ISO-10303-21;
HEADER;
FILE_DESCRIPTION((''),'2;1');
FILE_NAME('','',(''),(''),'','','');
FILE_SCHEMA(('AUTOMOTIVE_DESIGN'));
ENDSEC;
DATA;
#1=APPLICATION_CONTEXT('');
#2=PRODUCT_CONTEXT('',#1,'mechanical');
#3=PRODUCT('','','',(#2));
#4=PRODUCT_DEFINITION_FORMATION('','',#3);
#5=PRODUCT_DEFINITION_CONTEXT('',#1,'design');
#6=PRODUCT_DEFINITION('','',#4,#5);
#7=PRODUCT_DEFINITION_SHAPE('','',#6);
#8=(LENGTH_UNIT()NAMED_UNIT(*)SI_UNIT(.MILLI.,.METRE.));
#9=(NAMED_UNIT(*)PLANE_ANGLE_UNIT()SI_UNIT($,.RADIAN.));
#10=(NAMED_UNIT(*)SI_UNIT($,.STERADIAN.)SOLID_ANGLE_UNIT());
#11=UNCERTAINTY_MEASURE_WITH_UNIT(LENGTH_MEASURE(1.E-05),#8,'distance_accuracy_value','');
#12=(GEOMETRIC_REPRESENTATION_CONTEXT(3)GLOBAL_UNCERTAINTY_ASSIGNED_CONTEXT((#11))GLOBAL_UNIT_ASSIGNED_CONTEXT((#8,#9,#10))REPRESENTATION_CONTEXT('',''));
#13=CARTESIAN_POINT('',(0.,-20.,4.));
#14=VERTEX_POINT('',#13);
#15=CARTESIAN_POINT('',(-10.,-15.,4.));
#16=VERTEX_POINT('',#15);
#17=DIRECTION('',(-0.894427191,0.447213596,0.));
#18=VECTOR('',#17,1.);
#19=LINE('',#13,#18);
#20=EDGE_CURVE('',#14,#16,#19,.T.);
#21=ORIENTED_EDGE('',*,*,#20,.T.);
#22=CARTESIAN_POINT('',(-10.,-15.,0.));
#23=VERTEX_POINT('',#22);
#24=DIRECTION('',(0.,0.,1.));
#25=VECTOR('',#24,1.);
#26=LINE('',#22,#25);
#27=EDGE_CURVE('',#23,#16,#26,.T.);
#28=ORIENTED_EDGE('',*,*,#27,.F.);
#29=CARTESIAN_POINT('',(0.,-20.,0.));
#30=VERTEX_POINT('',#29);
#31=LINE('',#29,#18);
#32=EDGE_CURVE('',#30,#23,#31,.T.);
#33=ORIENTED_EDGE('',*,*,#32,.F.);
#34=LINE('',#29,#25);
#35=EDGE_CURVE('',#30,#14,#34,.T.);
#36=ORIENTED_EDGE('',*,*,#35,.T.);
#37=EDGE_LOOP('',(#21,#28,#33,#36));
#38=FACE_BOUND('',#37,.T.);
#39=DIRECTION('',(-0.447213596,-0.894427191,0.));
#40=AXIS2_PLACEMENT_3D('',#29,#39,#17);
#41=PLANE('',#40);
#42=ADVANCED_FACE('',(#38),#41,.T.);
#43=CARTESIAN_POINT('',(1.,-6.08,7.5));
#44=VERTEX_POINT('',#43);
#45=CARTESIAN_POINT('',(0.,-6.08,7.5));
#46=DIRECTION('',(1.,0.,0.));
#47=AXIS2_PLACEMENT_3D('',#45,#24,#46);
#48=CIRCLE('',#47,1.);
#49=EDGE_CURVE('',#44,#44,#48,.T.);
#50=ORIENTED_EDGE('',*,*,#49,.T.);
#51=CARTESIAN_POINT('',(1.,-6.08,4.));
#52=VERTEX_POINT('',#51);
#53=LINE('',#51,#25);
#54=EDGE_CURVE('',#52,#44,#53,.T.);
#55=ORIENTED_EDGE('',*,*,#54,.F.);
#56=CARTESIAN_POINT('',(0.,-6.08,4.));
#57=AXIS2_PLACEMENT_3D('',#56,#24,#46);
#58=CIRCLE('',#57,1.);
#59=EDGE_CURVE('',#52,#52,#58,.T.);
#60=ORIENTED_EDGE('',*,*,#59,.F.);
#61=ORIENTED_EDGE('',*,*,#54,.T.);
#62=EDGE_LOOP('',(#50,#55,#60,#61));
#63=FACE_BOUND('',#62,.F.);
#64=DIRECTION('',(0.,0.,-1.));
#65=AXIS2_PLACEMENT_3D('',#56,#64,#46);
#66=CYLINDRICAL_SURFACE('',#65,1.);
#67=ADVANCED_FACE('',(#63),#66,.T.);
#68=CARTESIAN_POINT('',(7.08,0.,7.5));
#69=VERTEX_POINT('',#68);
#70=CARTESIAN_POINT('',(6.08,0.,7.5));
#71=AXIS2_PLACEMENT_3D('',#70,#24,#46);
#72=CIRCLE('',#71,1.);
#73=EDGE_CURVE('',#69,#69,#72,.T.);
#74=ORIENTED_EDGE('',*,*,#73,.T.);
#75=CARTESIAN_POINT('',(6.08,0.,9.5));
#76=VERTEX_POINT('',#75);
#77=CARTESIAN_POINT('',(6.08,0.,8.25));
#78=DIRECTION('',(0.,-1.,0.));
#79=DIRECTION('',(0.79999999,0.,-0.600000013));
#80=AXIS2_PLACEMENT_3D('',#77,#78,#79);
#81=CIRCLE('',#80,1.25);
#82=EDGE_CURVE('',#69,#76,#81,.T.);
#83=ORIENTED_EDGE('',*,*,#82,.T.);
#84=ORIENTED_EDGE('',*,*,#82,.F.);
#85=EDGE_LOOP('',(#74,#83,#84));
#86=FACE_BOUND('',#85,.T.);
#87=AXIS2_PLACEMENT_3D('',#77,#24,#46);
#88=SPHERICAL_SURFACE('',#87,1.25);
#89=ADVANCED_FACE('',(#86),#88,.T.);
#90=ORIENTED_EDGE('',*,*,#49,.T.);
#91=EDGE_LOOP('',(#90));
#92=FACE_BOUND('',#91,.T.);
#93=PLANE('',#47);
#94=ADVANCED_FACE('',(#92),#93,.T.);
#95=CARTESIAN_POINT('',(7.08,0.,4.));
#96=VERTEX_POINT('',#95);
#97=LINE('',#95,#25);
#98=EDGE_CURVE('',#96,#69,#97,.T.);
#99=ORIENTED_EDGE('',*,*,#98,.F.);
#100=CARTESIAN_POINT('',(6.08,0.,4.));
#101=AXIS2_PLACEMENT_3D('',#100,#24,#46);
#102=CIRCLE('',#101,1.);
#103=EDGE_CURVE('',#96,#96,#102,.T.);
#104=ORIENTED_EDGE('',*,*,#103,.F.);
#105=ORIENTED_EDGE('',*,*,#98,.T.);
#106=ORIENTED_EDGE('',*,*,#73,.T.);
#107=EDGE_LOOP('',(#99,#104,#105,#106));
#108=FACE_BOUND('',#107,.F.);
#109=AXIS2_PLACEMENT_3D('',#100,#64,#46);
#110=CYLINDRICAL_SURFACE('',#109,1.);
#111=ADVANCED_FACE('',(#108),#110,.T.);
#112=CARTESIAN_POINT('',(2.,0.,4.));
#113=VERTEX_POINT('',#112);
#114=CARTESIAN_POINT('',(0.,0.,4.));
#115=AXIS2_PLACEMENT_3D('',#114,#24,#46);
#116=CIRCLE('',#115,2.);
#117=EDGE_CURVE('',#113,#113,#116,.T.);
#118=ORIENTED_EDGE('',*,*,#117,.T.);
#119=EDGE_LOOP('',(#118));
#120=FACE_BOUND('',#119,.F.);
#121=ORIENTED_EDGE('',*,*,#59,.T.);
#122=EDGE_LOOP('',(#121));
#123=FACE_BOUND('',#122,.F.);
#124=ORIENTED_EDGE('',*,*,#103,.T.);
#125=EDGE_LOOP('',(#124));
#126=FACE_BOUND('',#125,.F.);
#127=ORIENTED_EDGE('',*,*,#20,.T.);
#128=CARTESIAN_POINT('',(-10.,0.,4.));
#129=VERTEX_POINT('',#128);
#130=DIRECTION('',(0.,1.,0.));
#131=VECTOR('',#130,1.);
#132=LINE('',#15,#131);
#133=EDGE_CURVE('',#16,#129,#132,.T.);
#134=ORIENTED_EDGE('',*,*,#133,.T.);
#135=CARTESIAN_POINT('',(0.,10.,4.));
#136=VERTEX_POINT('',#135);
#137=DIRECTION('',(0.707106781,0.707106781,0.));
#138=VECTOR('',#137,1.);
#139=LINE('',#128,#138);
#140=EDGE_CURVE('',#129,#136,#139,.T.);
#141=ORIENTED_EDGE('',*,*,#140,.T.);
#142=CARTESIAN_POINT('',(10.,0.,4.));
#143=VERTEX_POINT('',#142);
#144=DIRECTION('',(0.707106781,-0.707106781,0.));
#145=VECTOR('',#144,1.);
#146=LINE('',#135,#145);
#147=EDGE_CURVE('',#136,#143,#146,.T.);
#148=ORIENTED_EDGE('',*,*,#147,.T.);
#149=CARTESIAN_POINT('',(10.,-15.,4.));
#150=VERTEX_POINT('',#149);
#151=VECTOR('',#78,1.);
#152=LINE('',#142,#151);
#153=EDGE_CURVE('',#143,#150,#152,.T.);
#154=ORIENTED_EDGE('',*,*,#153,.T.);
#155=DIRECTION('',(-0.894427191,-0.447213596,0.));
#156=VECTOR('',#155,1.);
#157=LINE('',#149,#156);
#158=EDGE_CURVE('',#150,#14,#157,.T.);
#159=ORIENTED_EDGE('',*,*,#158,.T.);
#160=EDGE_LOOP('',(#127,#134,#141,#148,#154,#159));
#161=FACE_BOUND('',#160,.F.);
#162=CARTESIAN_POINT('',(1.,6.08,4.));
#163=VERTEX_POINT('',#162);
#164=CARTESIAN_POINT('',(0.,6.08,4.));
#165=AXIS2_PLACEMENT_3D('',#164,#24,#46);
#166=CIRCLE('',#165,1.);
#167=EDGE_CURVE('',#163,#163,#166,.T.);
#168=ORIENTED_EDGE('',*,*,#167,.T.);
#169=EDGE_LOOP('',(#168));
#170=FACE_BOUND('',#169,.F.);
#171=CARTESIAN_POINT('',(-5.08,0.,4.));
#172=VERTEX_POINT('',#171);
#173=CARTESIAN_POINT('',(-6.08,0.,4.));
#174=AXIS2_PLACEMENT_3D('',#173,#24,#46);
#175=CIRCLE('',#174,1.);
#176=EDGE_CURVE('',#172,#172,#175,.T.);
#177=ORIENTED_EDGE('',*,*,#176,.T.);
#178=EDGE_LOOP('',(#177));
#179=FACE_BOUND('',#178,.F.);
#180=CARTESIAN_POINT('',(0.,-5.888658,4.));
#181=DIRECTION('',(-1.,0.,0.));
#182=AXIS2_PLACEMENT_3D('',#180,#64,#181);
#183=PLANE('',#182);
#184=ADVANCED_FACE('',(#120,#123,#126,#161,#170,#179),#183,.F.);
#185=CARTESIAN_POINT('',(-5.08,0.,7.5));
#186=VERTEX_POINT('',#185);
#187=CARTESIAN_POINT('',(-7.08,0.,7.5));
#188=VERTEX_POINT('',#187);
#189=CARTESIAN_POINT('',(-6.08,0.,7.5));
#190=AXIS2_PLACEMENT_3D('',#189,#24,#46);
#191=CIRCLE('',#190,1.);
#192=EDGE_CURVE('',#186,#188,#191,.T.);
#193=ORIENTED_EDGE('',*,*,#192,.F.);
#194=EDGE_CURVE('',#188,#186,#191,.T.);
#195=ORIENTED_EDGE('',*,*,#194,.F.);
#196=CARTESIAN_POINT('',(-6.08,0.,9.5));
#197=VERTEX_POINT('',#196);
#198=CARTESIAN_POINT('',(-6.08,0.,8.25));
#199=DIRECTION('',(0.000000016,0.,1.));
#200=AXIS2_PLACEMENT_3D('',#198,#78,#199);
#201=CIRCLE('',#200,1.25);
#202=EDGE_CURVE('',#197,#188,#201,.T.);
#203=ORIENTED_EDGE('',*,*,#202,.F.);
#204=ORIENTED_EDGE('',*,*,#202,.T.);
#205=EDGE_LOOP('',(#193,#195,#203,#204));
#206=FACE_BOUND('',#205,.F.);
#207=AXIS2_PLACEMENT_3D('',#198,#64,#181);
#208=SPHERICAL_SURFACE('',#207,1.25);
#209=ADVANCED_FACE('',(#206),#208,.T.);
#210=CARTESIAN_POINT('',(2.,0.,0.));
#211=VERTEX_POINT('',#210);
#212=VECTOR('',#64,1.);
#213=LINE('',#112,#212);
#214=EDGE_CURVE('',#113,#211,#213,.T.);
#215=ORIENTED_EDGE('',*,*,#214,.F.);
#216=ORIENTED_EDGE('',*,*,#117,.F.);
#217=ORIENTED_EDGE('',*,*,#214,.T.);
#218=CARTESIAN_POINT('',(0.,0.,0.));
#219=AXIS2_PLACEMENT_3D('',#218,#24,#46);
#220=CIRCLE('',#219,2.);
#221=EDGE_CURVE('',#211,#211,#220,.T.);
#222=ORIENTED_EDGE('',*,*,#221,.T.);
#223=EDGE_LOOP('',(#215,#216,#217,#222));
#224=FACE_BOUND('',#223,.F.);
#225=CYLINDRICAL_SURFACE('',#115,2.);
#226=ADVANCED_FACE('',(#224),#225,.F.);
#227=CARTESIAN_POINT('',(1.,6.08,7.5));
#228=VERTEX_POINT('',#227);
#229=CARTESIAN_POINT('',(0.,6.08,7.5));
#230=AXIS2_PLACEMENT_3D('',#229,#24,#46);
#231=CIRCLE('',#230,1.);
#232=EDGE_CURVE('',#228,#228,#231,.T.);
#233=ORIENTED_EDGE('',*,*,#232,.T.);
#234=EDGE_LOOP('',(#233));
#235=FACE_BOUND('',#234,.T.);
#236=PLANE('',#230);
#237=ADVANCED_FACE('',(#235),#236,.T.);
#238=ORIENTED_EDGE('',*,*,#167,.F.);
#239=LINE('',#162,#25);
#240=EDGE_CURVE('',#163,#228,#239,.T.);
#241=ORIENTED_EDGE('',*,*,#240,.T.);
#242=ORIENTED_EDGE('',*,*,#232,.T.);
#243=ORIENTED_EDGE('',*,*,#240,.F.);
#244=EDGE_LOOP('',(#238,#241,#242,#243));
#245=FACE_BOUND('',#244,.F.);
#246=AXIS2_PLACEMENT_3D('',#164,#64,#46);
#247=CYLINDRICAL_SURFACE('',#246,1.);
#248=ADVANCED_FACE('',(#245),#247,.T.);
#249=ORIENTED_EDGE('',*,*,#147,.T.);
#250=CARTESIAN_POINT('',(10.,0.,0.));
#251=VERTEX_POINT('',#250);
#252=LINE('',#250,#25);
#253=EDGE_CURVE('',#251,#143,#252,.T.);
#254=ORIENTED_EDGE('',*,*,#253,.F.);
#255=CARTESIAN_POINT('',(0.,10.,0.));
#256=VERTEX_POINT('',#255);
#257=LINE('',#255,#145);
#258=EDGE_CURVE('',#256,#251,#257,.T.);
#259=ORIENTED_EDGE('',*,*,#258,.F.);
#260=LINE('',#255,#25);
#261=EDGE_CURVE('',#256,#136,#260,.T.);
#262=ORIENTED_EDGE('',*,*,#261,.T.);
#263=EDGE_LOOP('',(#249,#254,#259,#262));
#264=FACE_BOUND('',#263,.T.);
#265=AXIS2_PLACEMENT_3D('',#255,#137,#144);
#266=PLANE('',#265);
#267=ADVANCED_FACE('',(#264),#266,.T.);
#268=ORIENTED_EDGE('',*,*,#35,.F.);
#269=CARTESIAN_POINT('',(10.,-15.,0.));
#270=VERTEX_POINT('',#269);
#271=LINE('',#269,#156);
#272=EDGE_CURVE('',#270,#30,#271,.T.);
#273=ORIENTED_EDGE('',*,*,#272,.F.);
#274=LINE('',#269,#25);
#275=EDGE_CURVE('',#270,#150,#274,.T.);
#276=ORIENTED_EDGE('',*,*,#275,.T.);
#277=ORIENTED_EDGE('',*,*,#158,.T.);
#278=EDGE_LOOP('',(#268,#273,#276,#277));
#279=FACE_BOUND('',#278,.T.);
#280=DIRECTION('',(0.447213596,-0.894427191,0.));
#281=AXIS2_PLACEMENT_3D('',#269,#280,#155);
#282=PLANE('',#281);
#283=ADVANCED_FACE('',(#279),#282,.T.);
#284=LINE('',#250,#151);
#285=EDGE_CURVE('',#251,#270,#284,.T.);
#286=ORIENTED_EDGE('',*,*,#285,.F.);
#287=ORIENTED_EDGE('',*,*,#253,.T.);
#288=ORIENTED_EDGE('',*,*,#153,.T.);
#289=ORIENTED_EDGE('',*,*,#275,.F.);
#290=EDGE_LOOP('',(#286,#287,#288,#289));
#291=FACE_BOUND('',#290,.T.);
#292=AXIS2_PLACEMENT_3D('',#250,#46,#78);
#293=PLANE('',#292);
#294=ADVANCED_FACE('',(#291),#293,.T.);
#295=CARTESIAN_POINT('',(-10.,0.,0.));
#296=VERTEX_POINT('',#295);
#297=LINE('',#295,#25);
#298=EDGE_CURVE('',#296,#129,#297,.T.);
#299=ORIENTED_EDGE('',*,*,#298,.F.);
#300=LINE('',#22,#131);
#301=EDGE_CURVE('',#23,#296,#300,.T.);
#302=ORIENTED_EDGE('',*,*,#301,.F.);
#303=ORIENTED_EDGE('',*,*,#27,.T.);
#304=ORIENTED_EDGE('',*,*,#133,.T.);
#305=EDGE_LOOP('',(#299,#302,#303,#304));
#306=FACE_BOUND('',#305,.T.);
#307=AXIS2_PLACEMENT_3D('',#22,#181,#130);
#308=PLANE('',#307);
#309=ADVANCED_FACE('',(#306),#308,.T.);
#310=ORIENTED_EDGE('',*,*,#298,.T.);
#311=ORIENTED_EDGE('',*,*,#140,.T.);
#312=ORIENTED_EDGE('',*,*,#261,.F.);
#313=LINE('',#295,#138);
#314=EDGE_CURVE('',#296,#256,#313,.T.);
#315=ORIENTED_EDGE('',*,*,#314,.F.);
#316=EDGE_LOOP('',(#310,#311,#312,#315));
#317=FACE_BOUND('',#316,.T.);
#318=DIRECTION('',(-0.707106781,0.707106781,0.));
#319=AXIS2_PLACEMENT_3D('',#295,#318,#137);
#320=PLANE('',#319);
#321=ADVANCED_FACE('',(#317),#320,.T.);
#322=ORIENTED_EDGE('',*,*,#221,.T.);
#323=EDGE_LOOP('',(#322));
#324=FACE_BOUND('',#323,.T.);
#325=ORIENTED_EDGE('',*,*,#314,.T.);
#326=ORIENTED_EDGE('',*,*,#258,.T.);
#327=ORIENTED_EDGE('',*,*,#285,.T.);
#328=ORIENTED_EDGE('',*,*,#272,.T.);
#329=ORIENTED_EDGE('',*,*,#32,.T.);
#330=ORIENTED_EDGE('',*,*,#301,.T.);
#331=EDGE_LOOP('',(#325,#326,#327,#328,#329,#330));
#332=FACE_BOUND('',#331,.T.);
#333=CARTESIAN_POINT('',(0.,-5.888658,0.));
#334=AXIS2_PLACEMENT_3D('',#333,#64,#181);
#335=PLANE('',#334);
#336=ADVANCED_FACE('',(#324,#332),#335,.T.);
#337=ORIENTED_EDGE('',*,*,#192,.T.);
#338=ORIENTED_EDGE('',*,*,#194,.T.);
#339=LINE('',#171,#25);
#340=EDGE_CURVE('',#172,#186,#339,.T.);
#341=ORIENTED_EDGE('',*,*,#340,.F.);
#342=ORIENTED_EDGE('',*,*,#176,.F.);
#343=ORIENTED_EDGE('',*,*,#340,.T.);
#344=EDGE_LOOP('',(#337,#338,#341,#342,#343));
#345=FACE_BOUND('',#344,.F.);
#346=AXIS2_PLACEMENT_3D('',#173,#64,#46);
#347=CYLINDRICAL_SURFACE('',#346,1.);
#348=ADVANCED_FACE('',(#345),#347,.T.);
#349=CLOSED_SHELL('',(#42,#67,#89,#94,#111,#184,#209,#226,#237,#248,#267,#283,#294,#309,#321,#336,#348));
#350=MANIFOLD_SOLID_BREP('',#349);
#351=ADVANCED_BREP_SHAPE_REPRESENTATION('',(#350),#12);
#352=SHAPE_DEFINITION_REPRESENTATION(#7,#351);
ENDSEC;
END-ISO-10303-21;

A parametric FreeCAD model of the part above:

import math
import FreeCAD as App
import Part
import Sketcher
from FreeCAD import Vector
Q = App.Units.Quantity

doc = App.newDocument("Part")
body = doc.addObject("PartDesign::Body", "Body")

sketch1 = body.newObject("Sketcher::SketchObject", "Sketch")
sketch1.AttachmentSupport = (doc.getObject("XY_Plane"), [""])
sketch1.MapMode = "FlatFace"
sketch1.addGeometry(Part.LineSegment(Vector(0, 10, 0), Vector(-10, 0, 0)), False)
sketch1.addGeometry(Part.LineSegment(Vector(-10, 0, 0), Vector(-10, -15, 0)), False)
sketch1.addGeometry(Part.LineSegment(Vector(-10, -15, 0), Vector(0, -20, 0)), False)
sketch1.addGeometry(Part.LineSegment(Vector(0, -20, 0), Vector(10, -15, 0)), False)
sketch1.addGeometry(Part.LineSegment(Vector(10, -15, 0), Vector(10, 0, 0)), False)
sketch1.addGeometry(Part.LineSegment(Vector(10, 0, 0), Vector(0, 10, 0)), False)
sketch1.addConstraint(Sketcher.Constraint("Coincident", 0, 2, 1, 1))
sketch1.addConstraint(Sketcher.Constraint("Coincident", 1, 2, 2, 1))
sketch1.addConstraint(Sketcher.Constraint("Coincident", 2, 2, 3, 1))
sketch1.addConstraint(Sketcher.Constraint("Coincident", 3, 2, 4, 1))
sketch1.addConstraint(Sketcher.Constraint("Coincident", 4, 2, 5, 1))
sketch1.addConstraint(Sketcher.Constraint("Coincident", 5, 2, 0, 1))
sketch1.addConstraint(Sketcher.Constraint("Vertical", 1))
sketch1.addConstraint(Sketcher.Constraint("Vertical", 4))
sketch1.addConstraint(Sketcher.Constraint("Symmetric", 0, 2, 4, 2, -1, 1))
sketch1.addConstraint(Sketcher.Constraint("PointOnObject", 0, 2, -1))
sketch1.addConstraint(Sketcher.Constraint("PointOnObject", 2, 2, -2))
sketch1.addConstraint(Sketcher.Constraint("PointOnObject", 5, 2, -2))
sketch1.addConstraint(Sketcher.Constraint("Perpendicular", 0, 5))
sketch1.addConstraint(Sketcher.Constraint("Horizontal", 1, 2, 3, 2))
sketch1.addConstraint(Sketcher.Constraint("DistanceY", 1, 2, 1, 1, Q("15 mm")))
sketch1.addConstraint(Sketcher.Constraint("DistanceX", 0, 2, -1, 1, Q("10 mm")))
sketch1.addConstraint(Sketcher.Constraint("DistanceY", 2, 2, -1, 1, Q("20 mm")))
pad1 = body.newObject("PartDesign::Pad", "Pad")
pad1.Profile = sketch1
pad1.Length = 4

sketch2 = body.newObject("Sketcher::SketchObject", "Sketch001")
sketch2.AttachmentSupport = (doc.getObject("XY_Plane"), [""])
sketch2.MapMode = "FlatFace"
sketch2.AttachmentOffset = App.Placement(Vector(0, 0, 4), App.Rotation())
sketch2.addGeometry(Part.Circle(Vector(0, 0, 0), Vector(0, 0, 1), 2), False)
sketch2.addConstraint(Sketcher.Constraint("Coincident", 0, 3, -1, 1))
sketch2.addConstraint(Sketcher.Constraint("Diameter", 0, Q("4 mm")))
pocket1 = body.newObject("PartDesign::Pocket", "Pocket")
pocket1.Profile = sketch2
pocket1.Length = 5

sketch3 = body.newObject("Sketcher::SketchObject", "Sketch002")
sketch3.AttachmentSupport = (doc.getObject("XY_Plane"), [""])
sketch3.MapMode = "FlatFace"
sketch3.AttachmentOffset = App.Placement(Vector(0, 0, 4), App.Rotation())
sketch3.addGeometry(Part.Circle(Vector(0, 6.1, 0), Vector(0, 0, 1), 1), False)
sketch3.addGeometry(Part.Circle(Vector(-6.1, 0, 0), Vector(0, 0, 1), 1), False)
sketch3.addGeometry(Part.Circle(Vector(6.1, 0, 0), Vector(0, 0, 1), 1), False)
sketch3.addGeometry(Part.Circle(Vector(0, -6.1, 0), Vector(0, 0, 1), 1), False)
sketch3.addConstraint(Sketcher.Constraint("Equal", 0, 1))
sketch3.addConstraint(Sketcher.Constraint("Equal", 1, 2))
sketch3.addConstraint(Sketcher.Constraint("Equal", 2, 3))
sketch3.addConstraint(Sketcher.Constraint("Symmetric", 1, 3, 2, 3, -1, 1))
sketch3.addConstraint(Sketcher.Constraint("Symmetric", 0, 3, 3, 3, -1, 1))
sketch3.addConstraint(Sketcher.Constraint("PointOnObject", 0, 3, -2))
sketch3.addConstraint(Sketcher.Constraint("PointOnObject", 1, 3, -1))
sketch3.addConstraint(Sketcher.Constraint("Diameter", 0, Q("2 mm")))
sketch3.addConstraint(Sketcher.Constraint("DistanceY", -1, 1, 0, 3, Q("6.08 mm")))
sketch3.addConstraint(Sketcher.Constraint("DistanceX", 1, 3, -1, 1, Q("6.08 mm")))
pad2 = body.newObject("PartDesign::Pad", "Pad001")
pad2.Profile = sketch3
pad2.Length = 3.5

sketch4 = body.newObject("Sketcher::SketchObject", "Sketch003")
sketch4.AttachmentSupport = (doc.getObject("XZ_Plane"), [""])
sketch4.MapMode = "FlatFace"
sketch4.addGeometry(Part.ArcOfCircle(Part.Circle(Vector(-6.1, 8.3, 0), Vector(0, 0, 1), 1.2), math.radians(90), math.radians(217)), False)
sketch4.addGeometry(Part.LineSegment(Vector(-7.1, 7.5, 0), Vector(-6.1, 7.5, 0)), False)
sketch4.addGeometry(Part.LineSegment(Vector(-6.1, 7.5, 0), Vector(-6.1, 9.5, 0)), False)
sketch4.addGeometry(Part.LineSegment(Vector(-6.1, 7.5, 0), Vector(-6.1, 9.5, 0)), True)
sketch4.addConstraint(Sketcher.Constraint("Coincident", 0, 2, 1, 1))
sketch4.addConstraint(Sketcher.Constraint("Coincident", 1, 2, 2, 1))
sketch4.addConstraint(Sketcher.Constraint("Coincident", 2, 2, 0, 1))
sketch4.addConstraint(Sketcher.Constraint("Horizontal", 1))
sketch4.addConstraint(Sketcher.Constraint("Vertical", 2))
sketch4.addConstraint(Sketcher.Constraint("Vertical", 3))
sketch4.addConstraint(Sketcher.Constraint("Coincident", 3, 1, 1, 2))
sketch4.addConstraint(Sketcher.Constraint("Vertical", 0, 3, 1, 2))
sketch4.addConstraint(Sketcher.Constraint("Equal", 2, 3))
sketch4.addConstraint(Sketcher.Constraint("DistanceX", 1, 1, 1, 2, Q("1 mm")))
sketch4.addConstraint(Sketcher.Constraint("DistanceY", 2, 1, 2, 2, Q("2 mm")))
sketch4.addConstraint(Sketcher.Constraint("DistanceY", -1, 1, 0, 2, Q("7.5 mm")))
sketch4.addConstraint(Sketcher.Constraint("DistanceX", 0, 3, -1, 1, Q("6.08 mm")))
revolution = body.newObject("PartDesign::Revolution", "Revolution")
revolution.Profile = sketch4
revolution.ReferenceAxis = (sketch4, ["Axis0"])
revolution.Angle = 360

sketch5 = body.newObject("Sketcher::SketchObject", "Sketch004")
sketch5.AttachmentSupport = (doc.getObject("XZ_Plane"), [""])
sketch5.MapMode = "FlatFace"
sketch5.addGeometry(Part.ArcOfCircle(Part.Circle(Vector(6.1, 8.3, 0), Vector(0, 0, 1), 1.2), math.radians(-37), math.radians(90)), False)
sketch5.addGeometry(Part.LineSegment(Vector(6.1, 9.5, 0), Vector(6.1, 7.5, 0)), False)
sketch5.addGeometry(Part.LineSegment(Vector(6.1, 7.5, 0), Vector(7.1, 7.5, 0)), False)
sketch5.addGeometry(Part.LineSegment(Vector(6.1, 7.5, 0), Vector(6.1, 9.5, 0)), True)
sketch5.addConstraint(Sketcher.Constraint("Coincident", 0, 2, 1, 1))
sketch5.addConstraint(Sketcher.Constraint("Coincident", 1, 2, 2, 1))
sketch5.addConstraint(Sketcher.Constraint("Coincident", 2, 2, 0, 1))
sketch5.addConstraint(Sketcher.Constraint("Vertical", 1))
sketch5.addConstraint(Sketcher.Constraint("Horizontal", 2))
sketch5.addConstraint(Sketcher.Constraint("Vertical", 3))
sketch5.addConstraint(Sketcher.Constraint("Coincident", 3, 1, 1, 2))
sketch5.addConstraint(Sketcher.Constraint("Equal", 1, 3))
sketch5.addConstraint(Sketcher.Constraint("DistanceX", 2, 1, 2, 2, Q("1 mm")))
sketch5.addConstraint(Sketcher.Constraint("DistanceY", 1, 2, 1, 1, Q("2 mm")))
sketch5.addConstraint(Sketcher.Constraint("Radius", 0, Q("1.25 mm")))
sketch5.addConstraint(Sketcher.Constraint("DistanceY", -1, 1, 0, 2, Q("9.5 mm")))
sketch5.addConstraint(Sketcher.Constraint("DistanceX", -1, 1, 0, 3, Q("6.08 mm")))
revolution2 = body.newObject("PartDesign::Revolution", "Revolution001")
revolution2.Profile = sketch5
revolution2.ReferenceAxis = (sketch5, ["Axis0"])
revolution2.Angle = 360

doc.recompute()
